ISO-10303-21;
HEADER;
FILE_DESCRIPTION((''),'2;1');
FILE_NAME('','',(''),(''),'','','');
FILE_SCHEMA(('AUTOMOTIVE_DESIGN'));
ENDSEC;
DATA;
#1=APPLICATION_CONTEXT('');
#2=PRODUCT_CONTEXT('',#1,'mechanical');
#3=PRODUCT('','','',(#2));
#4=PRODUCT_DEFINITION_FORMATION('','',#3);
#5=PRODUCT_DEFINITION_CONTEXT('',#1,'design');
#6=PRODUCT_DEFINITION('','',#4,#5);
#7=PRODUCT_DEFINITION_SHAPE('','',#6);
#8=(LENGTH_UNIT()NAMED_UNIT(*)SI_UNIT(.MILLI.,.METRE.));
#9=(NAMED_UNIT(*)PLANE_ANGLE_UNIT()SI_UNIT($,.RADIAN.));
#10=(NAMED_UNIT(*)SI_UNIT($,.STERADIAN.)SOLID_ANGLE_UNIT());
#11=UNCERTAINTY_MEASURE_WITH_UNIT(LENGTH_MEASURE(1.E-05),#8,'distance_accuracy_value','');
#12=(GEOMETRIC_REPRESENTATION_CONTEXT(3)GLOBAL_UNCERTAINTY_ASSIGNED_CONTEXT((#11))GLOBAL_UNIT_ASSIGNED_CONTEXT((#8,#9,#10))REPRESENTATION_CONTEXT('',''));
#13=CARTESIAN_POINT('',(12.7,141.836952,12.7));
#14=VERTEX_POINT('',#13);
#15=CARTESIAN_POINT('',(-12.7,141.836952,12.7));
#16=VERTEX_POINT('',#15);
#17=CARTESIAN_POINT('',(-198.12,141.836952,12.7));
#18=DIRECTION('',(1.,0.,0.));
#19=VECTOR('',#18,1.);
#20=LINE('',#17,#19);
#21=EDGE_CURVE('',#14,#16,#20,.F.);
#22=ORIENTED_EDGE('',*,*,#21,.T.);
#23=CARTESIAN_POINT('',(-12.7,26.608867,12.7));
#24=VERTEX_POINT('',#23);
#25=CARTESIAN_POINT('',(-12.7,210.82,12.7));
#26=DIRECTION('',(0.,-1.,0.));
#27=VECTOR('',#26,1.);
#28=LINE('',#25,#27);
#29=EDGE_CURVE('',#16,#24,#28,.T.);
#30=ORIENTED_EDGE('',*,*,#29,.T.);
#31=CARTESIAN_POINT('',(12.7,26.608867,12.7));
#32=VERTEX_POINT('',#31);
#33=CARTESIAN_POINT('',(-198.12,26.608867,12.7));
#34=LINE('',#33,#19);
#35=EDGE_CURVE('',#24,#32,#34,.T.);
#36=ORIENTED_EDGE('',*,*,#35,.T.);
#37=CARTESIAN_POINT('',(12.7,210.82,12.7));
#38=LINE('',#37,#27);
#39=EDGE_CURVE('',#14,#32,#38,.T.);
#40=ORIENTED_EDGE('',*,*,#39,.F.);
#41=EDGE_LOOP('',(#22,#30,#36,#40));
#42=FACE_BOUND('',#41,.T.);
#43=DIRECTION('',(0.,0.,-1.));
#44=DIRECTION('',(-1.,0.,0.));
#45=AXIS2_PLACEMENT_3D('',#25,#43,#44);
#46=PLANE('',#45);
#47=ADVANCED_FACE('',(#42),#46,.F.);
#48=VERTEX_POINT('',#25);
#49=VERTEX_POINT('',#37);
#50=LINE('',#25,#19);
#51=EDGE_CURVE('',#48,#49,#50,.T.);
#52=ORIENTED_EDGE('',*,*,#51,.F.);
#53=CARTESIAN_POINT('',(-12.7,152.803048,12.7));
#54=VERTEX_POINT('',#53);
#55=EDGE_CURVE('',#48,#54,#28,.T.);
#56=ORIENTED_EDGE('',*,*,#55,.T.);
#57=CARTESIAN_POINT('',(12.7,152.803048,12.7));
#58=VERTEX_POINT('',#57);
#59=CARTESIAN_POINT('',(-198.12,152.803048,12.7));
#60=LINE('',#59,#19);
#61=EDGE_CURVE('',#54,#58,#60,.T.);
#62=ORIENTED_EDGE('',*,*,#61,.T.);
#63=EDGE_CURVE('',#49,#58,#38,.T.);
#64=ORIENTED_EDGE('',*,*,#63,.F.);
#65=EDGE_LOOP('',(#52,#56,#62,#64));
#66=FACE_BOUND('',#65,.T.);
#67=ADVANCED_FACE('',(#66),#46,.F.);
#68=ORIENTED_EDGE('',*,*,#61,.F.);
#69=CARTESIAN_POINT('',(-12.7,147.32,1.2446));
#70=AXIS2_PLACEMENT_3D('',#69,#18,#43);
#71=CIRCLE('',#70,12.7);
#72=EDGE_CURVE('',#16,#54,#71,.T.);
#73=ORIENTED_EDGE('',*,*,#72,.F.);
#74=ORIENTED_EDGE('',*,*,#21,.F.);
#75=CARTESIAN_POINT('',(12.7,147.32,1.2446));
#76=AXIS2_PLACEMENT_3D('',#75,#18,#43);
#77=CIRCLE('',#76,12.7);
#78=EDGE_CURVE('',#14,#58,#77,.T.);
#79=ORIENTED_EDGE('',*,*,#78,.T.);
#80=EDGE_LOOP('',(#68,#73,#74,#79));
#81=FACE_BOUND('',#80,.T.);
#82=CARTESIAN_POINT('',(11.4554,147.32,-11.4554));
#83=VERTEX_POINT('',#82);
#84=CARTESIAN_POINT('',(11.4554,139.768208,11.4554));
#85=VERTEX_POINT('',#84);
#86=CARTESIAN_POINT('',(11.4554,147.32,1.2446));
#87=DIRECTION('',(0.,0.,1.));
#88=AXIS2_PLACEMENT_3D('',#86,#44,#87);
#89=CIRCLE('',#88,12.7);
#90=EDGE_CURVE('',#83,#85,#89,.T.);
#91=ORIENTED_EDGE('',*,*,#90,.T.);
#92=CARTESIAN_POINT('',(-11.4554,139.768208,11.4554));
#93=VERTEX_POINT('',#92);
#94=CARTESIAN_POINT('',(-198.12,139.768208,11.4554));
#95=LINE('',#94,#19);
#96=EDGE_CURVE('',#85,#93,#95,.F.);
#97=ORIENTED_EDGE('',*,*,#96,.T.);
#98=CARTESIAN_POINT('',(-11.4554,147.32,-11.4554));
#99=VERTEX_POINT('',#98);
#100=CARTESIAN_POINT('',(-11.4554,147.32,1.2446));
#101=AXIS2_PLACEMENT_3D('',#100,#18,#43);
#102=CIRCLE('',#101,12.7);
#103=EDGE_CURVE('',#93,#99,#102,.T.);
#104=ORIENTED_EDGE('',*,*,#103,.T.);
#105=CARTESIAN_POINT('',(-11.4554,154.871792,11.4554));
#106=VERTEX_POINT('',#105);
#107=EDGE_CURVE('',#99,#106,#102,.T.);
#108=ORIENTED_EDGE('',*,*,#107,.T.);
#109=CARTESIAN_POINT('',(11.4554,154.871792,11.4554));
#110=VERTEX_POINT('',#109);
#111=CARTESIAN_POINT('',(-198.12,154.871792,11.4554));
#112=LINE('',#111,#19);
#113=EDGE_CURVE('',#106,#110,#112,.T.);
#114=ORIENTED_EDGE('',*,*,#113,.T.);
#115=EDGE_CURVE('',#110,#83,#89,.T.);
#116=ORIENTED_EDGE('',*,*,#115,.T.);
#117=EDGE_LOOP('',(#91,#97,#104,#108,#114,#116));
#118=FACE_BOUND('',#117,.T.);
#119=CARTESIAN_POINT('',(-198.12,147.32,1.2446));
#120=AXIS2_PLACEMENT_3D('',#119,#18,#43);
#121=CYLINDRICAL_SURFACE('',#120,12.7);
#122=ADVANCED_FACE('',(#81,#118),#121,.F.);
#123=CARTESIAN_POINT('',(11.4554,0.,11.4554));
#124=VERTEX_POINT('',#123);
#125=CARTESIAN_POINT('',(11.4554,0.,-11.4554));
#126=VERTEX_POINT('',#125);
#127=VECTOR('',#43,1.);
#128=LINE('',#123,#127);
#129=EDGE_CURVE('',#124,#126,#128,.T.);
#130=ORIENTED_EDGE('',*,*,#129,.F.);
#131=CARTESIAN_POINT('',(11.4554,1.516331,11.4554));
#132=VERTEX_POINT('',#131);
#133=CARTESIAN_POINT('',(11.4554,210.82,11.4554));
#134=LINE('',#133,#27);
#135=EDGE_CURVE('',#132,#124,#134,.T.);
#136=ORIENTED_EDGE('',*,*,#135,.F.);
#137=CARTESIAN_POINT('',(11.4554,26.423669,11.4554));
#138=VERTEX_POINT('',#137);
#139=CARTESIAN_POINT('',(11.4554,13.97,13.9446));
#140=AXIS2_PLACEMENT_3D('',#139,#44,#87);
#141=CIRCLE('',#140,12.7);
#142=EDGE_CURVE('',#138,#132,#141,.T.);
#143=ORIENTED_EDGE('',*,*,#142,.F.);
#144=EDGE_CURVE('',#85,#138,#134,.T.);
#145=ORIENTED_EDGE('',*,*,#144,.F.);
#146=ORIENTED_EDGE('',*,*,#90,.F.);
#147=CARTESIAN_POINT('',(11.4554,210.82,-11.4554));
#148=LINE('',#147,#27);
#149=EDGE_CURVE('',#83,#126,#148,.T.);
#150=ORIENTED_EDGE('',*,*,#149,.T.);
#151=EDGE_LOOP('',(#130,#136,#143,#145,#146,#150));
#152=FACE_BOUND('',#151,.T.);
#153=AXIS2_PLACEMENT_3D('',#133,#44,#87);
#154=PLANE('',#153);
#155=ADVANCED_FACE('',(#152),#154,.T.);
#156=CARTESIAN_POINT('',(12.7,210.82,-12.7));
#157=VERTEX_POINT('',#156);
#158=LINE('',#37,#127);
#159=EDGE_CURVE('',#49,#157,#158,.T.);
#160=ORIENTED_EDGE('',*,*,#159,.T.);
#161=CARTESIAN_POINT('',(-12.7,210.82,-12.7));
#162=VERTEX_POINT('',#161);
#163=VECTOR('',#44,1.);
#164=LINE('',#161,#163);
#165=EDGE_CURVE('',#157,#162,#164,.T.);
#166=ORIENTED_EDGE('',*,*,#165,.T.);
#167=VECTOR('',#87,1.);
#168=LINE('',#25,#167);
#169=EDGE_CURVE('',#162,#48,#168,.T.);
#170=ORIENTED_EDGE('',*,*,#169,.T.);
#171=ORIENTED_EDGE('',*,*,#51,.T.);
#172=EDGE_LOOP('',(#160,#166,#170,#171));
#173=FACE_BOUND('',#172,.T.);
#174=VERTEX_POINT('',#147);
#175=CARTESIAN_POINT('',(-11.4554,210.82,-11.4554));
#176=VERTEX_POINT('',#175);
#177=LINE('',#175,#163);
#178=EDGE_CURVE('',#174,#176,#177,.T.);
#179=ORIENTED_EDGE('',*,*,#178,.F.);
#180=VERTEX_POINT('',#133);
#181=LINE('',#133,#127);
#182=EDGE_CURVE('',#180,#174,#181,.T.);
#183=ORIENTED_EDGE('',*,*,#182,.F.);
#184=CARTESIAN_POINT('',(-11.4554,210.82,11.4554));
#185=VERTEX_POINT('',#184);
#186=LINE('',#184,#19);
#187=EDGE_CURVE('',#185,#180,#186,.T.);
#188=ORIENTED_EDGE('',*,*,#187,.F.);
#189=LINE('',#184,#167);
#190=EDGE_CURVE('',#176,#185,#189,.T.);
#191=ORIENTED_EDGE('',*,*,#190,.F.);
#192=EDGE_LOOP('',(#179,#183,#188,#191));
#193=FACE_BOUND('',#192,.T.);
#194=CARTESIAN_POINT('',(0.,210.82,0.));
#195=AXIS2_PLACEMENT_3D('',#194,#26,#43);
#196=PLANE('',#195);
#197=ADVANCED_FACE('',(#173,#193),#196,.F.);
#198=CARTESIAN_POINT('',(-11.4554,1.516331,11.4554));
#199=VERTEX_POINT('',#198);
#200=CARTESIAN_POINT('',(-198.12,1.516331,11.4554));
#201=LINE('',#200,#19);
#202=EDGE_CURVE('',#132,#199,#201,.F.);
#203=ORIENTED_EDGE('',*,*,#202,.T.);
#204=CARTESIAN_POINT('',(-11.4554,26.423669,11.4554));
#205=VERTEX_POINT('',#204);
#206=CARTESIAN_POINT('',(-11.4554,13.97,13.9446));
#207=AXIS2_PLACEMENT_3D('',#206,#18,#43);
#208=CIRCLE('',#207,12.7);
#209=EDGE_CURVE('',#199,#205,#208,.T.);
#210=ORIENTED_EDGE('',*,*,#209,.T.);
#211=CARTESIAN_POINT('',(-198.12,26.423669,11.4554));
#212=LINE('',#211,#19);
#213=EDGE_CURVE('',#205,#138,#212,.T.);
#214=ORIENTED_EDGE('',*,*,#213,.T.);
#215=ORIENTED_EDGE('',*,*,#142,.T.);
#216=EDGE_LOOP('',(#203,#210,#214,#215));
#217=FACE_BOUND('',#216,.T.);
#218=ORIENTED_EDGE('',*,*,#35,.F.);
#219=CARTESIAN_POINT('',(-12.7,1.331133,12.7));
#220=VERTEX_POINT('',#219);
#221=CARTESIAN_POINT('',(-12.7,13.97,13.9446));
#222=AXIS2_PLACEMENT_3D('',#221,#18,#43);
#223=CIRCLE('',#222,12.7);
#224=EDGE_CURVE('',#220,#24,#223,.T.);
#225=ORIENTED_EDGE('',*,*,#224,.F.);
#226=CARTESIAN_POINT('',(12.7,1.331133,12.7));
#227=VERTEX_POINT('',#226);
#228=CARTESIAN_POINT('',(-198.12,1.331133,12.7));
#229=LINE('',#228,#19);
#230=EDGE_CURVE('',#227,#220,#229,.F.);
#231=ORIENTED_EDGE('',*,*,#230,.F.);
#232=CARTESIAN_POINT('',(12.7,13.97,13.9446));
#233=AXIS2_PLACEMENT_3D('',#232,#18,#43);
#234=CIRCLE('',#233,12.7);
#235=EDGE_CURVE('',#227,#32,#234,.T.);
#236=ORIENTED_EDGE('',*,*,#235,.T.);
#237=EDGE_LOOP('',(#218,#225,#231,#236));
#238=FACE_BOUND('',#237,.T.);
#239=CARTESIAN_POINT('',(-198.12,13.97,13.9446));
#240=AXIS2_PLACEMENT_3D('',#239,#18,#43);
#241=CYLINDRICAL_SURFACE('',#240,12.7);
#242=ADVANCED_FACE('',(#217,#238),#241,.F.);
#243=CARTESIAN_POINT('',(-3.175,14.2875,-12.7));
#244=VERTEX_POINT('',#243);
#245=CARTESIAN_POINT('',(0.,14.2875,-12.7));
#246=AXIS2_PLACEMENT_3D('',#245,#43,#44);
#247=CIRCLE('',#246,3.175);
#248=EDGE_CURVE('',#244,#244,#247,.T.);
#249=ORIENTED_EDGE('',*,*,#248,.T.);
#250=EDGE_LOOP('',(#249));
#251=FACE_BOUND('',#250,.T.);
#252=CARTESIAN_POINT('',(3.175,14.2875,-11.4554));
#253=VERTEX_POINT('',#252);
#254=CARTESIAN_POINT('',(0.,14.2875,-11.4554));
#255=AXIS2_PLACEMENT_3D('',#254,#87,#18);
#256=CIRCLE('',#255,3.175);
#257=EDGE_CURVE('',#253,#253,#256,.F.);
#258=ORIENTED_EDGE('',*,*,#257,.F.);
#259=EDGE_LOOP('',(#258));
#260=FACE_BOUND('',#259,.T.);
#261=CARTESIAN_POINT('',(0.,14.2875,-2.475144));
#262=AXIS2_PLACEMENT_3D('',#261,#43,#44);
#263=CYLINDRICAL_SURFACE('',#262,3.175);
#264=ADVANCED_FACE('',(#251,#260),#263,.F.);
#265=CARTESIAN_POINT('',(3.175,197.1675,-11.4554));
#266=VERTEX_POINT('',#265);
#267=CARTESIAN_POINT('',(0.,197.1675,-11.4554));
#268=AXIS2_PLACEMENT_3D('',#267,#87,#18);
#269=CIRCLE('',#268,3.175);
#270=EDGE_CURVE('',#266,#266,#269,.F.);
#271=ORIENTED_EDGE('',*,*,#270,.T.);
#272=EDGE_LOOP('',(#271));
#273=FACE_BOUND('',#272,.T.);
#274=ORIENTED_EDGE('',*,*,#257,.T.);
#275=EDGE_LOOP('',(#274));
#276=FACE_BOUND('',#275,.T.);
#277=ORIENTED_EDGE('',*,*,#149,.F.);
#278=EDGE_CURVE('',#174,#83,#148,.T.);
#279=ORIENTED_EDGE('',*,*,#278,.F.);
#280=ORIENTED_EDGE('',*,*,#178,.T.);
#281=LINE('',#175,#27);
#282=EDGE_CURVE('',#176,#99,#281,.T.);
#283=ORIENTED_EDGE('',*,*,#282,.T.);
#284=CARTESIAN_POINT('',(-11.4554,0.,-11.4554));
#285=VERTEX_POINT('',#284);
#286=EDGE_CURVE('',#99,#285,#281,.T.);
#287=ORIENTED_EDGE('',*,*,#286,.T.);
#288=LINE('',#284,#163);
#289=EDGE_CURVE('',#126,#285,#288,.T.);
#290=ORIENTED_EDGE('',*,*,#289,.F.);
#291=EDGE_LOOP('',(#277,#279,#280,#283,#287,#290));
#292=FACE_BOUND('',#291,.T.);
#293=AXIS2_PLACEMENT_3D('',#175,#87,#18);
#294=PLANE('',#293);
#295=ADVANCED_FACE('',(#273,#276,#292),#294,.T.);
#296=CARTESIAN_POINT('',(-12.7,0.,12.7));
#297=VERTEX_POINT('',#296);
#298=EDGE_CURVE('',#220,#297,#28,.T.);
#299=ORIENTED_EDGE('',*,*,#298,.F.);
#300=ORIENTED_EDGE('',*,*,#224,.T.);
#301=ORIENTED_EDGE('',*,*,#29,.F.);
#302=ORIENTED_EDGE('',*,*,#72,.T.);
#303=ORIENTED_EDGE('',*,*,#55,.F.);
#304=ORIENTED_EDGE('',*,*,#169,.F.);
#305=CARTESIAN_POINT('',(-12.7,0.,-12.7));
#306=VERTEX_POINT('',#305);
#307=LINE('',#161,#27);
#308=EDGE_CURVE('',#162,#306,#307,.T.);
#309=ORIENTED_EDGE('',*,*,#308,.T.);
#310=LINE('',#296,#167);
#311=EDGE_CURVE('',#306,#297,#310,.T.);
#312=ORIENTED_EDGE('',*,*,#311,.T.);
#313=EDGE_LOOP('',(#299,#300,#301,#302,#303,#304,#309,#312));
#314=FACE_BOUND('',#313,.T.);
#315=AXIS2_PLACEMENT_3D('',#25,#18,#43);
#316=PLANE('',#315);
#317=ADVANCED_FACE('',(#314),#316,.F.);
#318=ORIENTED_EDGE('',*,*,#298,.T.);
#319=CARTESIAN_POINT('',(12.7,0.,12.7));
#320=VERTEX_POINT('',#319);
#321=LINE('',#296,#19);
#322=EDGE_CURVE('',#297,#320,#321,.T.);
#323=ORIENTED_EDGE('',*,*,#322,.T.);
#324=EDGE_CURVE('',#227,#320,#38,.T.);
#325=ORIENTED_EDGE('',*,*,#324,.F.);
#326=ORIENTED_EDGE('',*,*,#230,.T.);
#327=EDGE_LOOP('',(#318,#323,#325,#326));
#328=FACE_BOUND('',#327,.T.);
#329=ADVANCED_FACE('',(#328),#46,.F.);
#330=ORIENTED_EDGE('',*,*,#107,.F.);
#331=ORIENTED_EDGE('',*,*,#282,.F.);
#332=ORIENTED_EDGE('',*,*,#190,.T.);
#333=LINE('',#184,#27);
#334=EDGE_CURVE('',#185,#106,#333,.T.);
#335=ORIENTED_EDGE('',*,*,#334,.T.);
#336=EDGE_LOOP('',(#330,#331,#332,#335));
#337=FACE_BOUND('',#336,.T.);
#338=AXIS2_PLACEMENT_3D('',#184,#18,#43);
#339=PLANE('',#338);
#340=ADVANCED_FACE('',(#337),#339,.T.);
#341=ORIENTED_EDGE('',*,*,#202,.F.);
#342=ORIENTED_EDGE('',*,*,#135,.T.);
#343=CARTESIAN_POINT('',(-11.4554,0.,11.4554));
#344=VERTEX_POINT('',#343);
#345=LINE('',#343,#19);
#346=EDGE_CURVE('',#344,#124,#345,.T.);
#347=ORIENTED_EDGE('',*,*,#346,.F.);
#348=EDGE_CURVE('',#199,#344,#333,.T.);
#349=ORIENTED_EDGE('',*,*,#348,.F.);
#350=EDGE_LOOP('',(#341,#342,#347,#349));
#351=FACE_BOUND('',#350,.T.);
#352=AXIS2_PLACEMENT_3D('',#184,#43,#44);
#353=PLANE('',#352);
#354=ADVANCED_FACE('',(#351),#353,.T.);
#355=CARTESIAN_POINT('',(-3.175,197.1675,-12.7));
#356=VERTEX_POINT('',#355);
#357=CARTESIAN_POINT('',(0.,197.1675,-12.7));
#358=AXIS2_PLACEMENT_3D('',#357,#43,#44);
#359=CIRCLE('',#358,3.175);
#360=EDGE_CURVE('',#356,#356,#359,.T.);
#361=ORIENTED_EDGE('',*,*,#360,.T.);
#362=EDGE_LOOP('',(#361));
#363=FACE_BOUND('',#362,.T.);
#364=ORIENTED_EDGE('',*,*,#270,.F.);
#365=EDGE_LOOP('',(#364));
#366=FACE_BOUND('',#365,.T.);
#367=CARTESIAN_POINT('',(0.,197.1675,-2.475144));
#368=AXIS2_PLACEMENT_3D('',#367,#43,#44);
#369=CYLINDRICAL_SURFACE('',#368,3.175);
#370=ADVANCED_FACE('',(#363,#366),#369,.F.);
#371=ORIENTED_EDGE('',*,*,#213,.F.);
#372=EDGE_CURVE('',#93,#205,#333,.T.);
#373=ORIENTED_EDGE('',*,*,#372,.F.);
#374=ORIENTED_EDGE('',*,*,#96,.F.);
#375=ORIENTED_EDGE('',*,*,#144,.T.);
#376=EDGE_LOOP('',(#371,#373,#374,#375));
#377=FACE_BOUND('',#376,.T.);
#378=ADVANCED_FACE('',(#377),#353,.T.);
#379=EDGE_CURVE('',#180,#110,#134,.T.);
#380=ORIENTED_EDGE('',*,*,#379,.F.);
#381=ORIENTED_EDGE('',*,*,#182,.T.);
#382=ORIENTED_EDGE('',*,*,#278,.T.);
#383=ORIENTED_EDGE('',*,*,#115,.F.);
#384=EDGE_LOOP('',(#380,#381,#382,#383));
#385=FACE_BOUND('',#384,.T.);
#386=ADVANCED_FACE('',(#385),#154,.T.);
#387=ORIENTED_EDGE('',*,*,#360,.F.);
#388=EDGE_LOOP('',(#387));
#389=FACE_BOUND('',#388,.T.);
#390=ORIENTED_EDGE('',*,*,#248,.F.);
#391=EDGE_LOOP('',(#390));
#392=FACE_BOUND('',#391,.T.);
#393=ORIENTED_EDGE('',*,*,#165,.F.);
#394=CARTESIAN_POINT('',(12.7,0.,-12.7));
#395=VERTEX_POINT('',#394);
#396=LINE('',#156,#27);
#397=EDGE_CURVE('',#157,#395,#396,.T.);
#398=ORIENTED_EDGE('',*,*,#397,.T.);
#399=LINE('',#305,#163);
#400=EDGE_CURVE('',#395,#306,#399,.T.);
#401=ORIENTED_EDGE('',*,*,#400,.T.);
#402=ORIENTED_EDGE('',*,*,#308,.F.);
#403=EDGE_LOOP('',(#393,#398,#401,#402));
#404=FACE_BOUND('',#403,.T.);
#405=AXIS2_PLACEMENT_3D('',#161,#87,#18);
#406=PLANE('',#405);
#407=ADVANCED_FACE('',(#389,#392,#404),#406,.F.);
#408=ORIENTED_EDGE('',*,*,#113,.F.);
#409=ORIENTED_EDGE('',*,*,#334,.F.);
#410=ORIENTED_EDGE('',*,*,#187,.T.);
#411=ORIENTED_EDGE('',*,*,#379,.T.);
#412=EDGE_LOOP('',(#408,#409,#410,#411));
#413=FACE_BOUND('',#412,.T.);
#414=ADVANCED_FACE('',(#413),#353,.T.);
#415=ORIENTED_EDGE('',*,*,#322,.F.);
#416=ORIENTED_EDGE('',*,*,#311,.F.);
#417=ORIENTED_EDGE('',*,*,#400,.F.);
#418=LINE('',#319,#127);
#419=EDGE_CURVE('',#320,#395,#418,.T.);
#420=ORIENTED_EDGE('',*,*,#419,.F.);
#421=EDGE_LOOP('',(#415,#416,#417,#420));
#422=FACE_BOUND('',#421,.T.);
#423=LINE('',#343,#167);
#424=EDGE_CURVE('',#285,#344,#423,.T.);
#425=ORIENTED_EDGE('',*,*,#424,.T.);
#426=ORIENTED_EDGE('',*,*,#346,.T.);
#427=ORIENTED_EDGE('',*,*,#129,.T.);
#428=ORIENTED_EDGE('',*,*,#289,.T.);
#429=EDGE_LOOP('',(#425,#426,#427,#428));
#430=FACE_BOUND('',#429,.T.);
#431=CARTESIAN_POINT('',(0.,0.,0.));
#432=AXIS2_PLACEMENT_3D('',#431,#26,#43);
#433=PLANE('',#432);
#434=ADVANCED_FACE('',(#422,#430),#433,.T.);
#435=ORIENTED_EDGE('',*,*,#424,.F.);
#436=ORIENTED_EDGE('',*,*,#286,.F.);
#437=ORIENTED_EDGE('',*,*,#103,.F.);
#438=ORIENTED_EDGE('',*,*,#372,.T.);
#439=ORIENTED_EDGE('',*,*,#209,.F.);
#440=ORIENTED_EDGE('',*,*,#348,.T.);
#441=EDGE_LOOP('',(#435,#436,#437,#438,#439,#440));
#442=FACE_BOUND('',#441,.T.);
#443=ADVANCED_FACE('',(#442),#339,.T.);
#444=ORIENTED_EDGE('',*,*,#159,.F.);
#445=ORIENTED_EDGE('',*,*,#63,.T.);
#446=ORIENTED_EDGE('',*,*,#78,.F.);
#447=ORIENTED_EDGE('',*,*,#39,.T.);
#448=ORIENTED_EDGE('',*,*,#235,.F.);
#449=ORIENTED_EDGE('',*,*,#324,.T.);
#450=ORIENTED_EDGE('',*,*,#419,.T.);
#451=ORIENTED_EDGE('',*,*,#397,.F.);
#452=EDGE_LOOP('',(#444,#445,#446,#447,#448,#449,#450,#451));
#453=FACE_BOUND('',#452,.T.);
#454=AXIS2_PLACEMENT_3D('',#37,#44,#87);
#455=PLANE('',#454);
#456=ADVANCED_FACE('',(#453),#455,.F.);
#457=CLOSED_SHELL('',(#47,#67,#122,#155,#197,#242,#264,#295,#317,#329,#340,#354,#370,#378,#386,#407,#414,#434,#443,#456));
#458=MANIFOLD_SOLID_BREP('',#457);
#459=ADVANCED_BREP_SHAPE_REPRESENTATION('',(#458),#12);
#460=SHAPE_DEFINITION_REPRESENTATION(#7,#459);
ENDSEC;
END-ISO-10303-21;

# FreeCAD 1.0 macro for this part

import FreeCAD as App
import Part
import Sketcher

V = App.Vector
Q = App.Units.Quantity

doc = App.newDocument("Part")
body = doc.addObject("PartDesign::Body", "Body")

sketch1 = body.newObject("Sketcher::SketchObject", "Sketch")
sketch1.AttachmentSupport = (doc.getObject("XZ_Plane"), [""])
sketch1.MapMode = "FlatFace"
sketch1.addGeometry(Part.LineSegment(V(-13, -13, 0), V(-13, 13, 0)), False)
sketch1.addGeometry(Part.LineSegment(V(-13, 13, 0), V(13, 13, 0)), False)
sketch1.addGeometry(Part.LineSegment(V(13, 13, 0), V(13, -13, 0)), False)
sketch1.addGeometry(Part.LineSegment(V(13, -13, 0), V(-13, -13, 0)), False)
sketch1.addGeometry(Part.LineSegment(V(11, 11, 0), V(-11, 11, 0)), False)
sketch1.addGeometry(Part.LineSegment(V(-11, 11, 0), V(-11, -11, 0)), False)
sketch1.addGeometry(Part.LineSegment(V(-11, -11, 0), V(11, -11, 0)), False)
sketch1.addGeometry(Part.LineSegment(V(11, -11, 0), V(11, 11, 0)), False)
sketch1.addConstraint(Sketcher.Constraint("Coincident", 0, 2, 1, 1))
sketch1.addConstraint(Sketcher.Constraint("Coincident", 1, 2, 2, 1))
sketch1.addConstraint(Sketcher.Constraint("Coincident", 2, 2, 3, 1))
sketch1.addConstraint(Sketcher.Constraint("Coincident", 3, 2, 0, 1))
sketch1.addConstraint(Sketcher.Constraint("Coincident", 4, 2, 5, 1))
sketch1.addConstraint(Sketcher.Constraint("Coincident", 5, 2, 6, 1))
sketch1.addConstraint(Sketcher.Constraint("Coincident", 6, 2, 7, 1))
sketch1.addConstraint(Sketcher.Constraint("Coincident", 7, 2, 4, 1))
sketch1.addConstraint(Sketcher.Constraint("Vertical", 0))
sketch1.addConstraint(Sketcher.Constraint("Horizontal", 1))
sketch1.addConstraint(Sketcher.Constraint("Vertical", 2))
sketch1.addConstraint(Sketcher.Constraint("Horizontal", 3))
sketch1.addConstraint(Sketcher.Constraint("Horizontal", 4))
sketch1.addConstraint(Sketcher.Constraint("Vertical", 5))
sketch1.addConstraint(Sketcher.Constraint("Horizontal", 6))
sketch1.addConstraint(Sketcher.Constraint("Vertical", 7))
sketch1.addConstraint(Sketcher.Constraint("Symmetric", 0, 2, 2, 2, -1, 1))
sketch1.addConstraint(Sketcher.Constraint("Symmetric", 4, 2, 6, 2, -1, 1))
sketch1.addConstraint(Sketcher.Constraint("Equal", 3, 0))
sketch1.addConstraint(Sketcher.Constraint("Equal", 6, 5))
sketch1.addConstraint(Sketcher.Constraint("DistanceX", 1, 1, 1, 2, Q("1 in")))
sketch1.addConstraint(Sketcher.Constraint("DistanceX", 4, 2, 4, 1, Q("0.902 in")))
pad1 = body.newObject("PartDesign::Pad", "Pad")
pad1.Profile = sketch1
pad1.Length = Q("8.3 in")
pad1.Reversed = True

sketch2 = body.newObject("Sketcher::SketchObject", "Sketch001")
sketch2.AttachmentSupport = (doc.getObject("YZ_Plane"), [""])
sketch2.MapMode = "FlatFace"
sketch2.AttachmentOffset = App.Placement(V(0, 0, 0.5 * 25.4), App.Rotation())
sketch2.addGeometry(Part.Circle(V(147, 1, 0), V(0, 0, 1), 13), False)
sketch2.addGeometry(Part.Circle(V(14, 14, 0), V(0, 0, 1), 13), False)
sketch2.addConstraint(Sketcher.Constraint("Equal", 0, 1))
sketch2.addConstraint(Sketcher.Constraint("Diameter", 0, Q("1 in")))
sketch2.addConstraint(Sketcher.Constraint("DistanceX", -1, 1, 0, 3, Q("5.8 in")))
sketch2.addConstraint(Sketcher.Constraint("DistanceY", 0, 3, 1, 3, Q("0.5 in")))
sketch2.addConstraint(Sketcher.Constraint("DistanceX", -1, 1, 1, 3, Q("0.55 in")))
sketch2.addConstraint(Sketcher.Constraint("DistanceY", -1, 1, 0, 3, Q("0.049 in")))
pocket1 = body.newObject("PartDesign::Pocket", "Pocket")
pocket1.Profile = sketch2
pocket1.Length = Q("8.3 in")

sketch3 = body.newObject("Sketcher::SketchObject", "Sketch002")
sketch3.AttachmentSupport = (doc.getObject("XY_Plane"), [""])
sketch3.MapMode = "FlatFace"
sketch3.AttachmentOffset = App.Placement(V(0, 0, -0.5 * 25.4), App.Rotation())
sketch3.addGeometry(Part.Circle(V(0, 197.2, 0), V(0, 0, 1), 3.2), False)
sketch3.addGeometry(Part.Circle(V(0, 14.3, 0), V(0, 0, 1), 3.2), False)
sketch3.addConstraint(Sketcher.Constraint("Equal", 0, 1))
sketch3.addConstraint(Sketcher.Constraint("PointOnObject", 0, 3, -2))
sketch3.addConstraint(Sketcher.Constraint("PointOnObject", 1, 3, -2))
sketch3.addConstraint(Sketcher.Constraint("Diameter", 0, Q("0.25 in")))
sketch3.addConstraint(Sketcher.Constraint("DistanceY", 1, 3, 0, 3, Q("7.2 in")))
sketch3.addConstraint(Sketcher.Constraint("DistanceY", -1, 1, 1, 3, Q("0.5625 in")))
pocket2 = body.newObject("PartDesign::Pocket", "Pocket001")
pocket2.Profile = sketch3
pocket2.Length = Q("0.049 in")
pocket2.Reversed = True

doc.recompute()
